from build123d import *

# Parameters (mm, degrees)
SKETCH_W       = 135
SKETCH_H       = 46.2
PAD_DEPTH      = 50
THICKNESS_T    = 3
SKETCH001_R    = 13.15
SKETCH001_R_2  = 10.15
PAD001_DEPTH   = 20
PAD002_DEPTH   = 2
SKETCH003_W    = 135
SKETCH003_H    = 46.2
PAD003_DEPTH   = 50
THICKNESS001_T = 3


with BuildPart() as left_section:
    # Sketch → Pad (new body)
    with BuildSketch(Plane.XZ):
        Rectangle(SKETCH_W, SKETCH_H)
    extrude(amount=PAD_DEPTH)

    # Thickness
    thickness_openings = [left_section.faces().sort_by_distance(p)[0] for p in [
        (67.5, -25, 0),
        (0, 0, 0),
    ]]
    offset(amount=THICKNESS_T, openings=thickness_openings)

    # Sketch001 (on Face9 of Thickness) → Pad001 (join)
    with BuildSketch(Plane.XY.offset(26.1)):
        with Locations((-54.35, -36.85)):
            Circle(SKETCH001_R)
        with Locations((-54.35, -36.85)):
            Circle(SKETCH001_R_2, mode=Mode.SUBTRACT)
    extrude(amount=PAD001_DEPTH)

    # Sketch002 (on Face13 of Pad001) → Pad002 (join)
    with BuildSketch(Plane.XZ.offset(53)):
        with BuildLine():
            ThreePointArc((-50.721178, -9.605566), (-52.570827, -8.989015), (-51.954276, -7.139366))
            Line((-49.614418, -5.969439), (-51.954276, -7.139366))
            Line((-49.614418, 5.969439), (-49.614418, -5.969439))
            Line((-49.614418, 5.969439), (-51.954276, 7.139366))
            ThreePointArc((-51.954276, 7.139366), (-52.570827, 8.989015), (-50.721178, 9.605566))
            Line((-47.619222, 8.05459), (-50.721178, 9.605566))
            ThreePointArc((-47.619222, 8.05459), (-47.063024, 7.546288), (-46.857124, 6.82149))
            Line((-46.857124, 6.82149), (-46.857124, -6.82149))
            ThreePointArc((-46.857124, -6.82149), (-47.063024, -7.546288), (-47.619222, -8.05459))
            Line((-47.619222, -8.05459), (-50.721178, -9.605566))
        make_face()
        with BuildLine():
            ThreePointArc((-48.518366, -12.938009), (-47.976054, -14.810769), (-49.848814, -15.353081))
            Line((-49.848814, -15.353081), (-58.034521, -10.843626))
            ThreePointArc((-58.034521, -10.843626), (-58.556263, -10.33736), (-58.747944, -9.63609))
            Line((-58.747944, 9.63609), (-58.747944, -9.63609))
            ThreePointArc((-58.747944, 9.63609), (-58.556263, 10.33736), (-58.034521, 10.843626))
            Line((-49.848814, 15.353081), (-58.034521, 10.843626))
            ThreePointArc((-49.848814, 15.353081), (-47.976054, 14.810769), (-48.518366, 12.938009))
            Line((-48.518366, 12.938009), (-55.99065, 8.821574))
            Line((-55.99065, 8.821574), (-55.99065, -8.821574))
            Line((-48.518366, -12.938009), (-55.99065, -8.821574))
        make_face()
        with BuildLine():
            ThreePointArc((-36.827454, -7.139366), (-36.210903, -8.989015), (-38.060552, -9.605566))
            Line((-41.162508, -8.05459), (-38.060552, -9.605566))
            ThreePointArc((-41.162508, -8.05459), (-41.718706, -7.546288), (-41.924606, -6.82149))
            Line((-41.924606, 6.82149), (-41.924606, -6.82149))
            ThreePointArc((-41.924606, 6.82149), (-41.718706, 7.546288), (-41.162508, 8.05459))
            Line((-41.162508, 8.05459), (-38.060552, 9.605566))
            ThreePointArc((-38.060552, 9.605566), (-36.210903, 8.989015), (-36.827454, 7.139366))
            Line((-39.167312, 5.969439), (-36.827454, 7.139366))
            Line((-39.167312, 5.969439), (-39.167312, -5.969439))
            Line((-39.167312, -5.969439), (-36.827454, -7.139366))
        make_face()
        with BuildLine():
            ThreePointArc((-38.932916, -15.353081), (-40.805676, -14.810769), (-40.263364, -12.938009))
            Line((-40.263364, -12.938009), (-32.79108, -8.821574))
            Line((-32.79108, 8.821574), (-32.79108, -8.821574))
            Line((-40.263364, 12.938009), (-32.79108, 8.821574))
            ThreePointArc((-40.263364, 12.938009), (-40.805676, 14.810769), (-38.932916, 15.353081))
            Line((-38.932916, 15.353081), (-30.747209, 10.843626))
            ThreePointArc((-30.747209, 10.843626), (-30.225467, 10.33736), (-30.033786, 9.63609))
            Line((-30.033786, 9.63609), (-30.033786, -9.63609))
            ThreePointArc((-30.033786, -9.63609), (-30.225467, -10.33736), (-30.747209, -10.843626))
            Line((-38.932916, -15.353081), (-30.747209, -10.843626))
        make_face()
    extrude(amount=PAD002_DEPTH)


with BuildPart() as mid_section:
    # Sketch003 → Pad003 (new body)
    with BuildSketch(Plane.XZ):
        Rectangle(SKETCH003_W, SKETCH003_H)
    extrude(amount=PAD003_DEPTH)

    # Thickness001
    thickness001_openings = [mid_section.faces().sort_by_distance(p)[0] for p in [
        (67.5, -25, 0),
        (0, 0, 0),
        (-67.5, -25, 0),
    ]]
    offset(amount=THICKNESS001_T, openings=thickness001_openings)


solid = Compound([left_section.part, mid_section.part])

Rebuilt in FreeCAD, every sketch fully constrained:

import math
import FreeCAD as App
import Part
import Sketcher


def faces_at(feature, points):
    """Names of the faces that lie closest to the given points."""
    faces = feature.Shape.Faces
    near = lambda p: min(range(len(faces)), key=lambda i: faces[i].distToShape(Part.Vertex(*p))[0])
    return sorted({f"Face{near(p) + 1}" for p in points})


def add_polygon(sketch, points):
    """Adds a closed chain of lines whose ends are joined by coincident constraints."""
    first, n = sketch.GeometryCount, len(points)
    for a, b in zip(points, points[1:] + points[:1]):
        sketch.addGeometry(Part.LineSegment(App.Vector(*a, 0), App.Vector(*b, 0)), False)
    for i in range(n):
        sketch.addConstraint(Sketcher.Constraint("Coincident", first + i, 2, first + (i + 1) % n, 1))

doc = App.newDocument("Part")
body = doc.addObject("PartDesign::Body", "Body")

sketch1 = body.newObject("Sketcher::SketchObject", "Sketch")
sketch1.AttachmentSupport = (doc.getObject("XZ_Plane"), [""])
sketch1.MapMode = "FlatFace"
add_polygon(sketch1, [(-67.5, 23.1), (-67.5, -23.1), (67.5, -23.1), (67.5, 23.1)])
sketch1.addConstraint([
    Sketcher.Constraint("Vertical", 0),
    Sketcher.Constraint("Horizontal", 1),
    Sketcher.Constraint("Vertical", 2),
    Sketcher.Constraint("Horizontal", 3),
    Sketcher.Constraint("Symmetric", 0, 2, 2, 2, -1, 1),
    Sketcher.Constraint("DistanceX", 1, 1, 1, 2, 135.0),
    Sketcher.Constraint("DistanceY", 0, 2, 0, 1, 46.2),
])
pad1 = body.newObject("PartDesign::Pad", "Pad")
pad1.Profile = sketch1
pad1.Length = 50
doc.recompute()

thickness = body.newObject("PartDesign::Thickness", "Thickness")
thickness.Base = (pad1, faces_at(pad1, [(67.5, -25, 0), (0, 0, 0)]))
thickness.Value = 3
thickness.Reversed = False
thickness.Join = "Arc"

sketch2 = body.newObject("Sketcher::SketchObject", "Sketch001")
sketch2.AttachmentSupport = (doc.getObject("XY_Plane"), [""])
sketch2.MapMode = "FlatFace"
sketch2.AttachmentOffset = App.Placement(App.Vector(0, 0, 26.1), App.Rotation())
sketch2.addGeometry([
    Part.Circle(App.Vector(-54.35, -36.85, 0), App.Vector(0, 0, 1), 13.15),
    Part.Circle(App.Vector(-54.35, -36.85, 0), App.Vector(0, 0, 1), 10.15),
], False)
sketch2.addConstraint([
    Sketcher.Constraint("Coincident", 1, 3, 0, 3),
    Sketcher.Constraint("Diameter", 0, 26.3),
    Sketcher.Constraint("Diameter", 1, 20.3),
    Sketcher.Constraint("DistanceX", 0, 3, -1, 1, 54.35),
    Sketcher.Constraint("DistanceY", 0, 3, -1, 1, 36.85),
])
pad2 = body.newObject("PartDesign::Pad", "Pad001")
pad2.Profile = sketch2
pad2.Length = 20

sketch3 = body.newObject("Sketcher::SketchObject", "Sketch002")
sketch3.AttachmentSupport = (doc.getObject("XZ_Plane"), [""])
sketch3.MapMode = "FlatFace"
sketch3.AttachmentOffset = App.Placement(App.Vector(0, 0, 53), App.Rotation())
sketch3.addGeometry([
    Part.ArcOfCircle(Part.Circle(App.Vector(-51.337727, -8.372466, 0), App.Vector(0, 0, 1), 1.378647), math.radians(116.565014), math.radians(296.565014)),
    Part.LineSegment(App.Vector(-50.721178, -9.605566, 0), App.Vector(-47.619222, -8.05459, 0)),
    Part.ArcOfCircle(Part.Circle(App.Vector(-48.235772, -6.82149, 0), App.Vector(0, 0, 1), 1.378648), math.radians(-63.434964), math.radians(-0.000004)),
    Part.LineSegment(App.Vector(-46.857124, -6.82149, 0), App.Vector(-46.857124, 6.82149, 0)),
    Part.ArcOfCircle(Part.Circle(App.Vector(-48.235772, 6.82149, 0), App.Vector(0, 0, 1), 1.378648), math.radians(0.000004), math.radians(63.434964)),
    Part.LineSegment(App.Vector(-47.619222, 8.05459, 0), App.Vector(-50.721178, 9.605566, 0)),
    Part.ArcOfCircle(Part.Circle(App.Vector(-51.337727, 8.372466, 0), App.Vector(0, 0, 1), 1.378647), math.radians(63.434986), math.radians(243.434986)),
    Part.LineSegment(App.Vector(-51.954276, 7.139366, 0), App.Vector(-49.614418, 5.969439, 0)),
    Part.LineSegment(App.Vector(-49.614418, 5.969439, 0), App.Vector(-49.614418, -5.969439, 0)),
    Part.LineSegment(App.Vector(-49.614418, -5.969439, 0), App.Vector(-51.954276, -7.139366, 0)),
    Part.ArcOfCircle(Part.Circle(App.Vector(-49.18359, -14.145545, 0), App.Vector(0, 0, 1), 1.378646), math.radians(-118.850093), math.radians(61.149907)),
    Part.LineSegment(App.Vector(-48.518366, -12.938009, 0), App.Vector(-55.99065, -8.821574, 0)),
    Part.LineSegment(App.Vector(-55.99065, -8.821574, 0), App.Vector(-55.99065, 8.821574, 0)),
    Part.LineSegment(App.Vector(-55.99065, 8.821574, 0), App.Vector(-48.518366, 12.938009, 0)),
    Part.ArcOfCircle(Part.Circle(App.Vector(-49.18359, 14.145545, 0), App.Vector(0, 0, 1), 1.378646), math.radians(-61.149907), math.radians(118.850093)),
    Part.LineSegment(App.Vector(-49.848814, 15.353081, 0), App.Vector(-58.034521, 10.843626, 0)),
    Part.ArcOfCircle(Part.Circle(App.Vector(-57.3693, 9.636091, 0), App.Vector(0, 0, 1), 1.378644), math.radians(118.850018), math.radians(180.00004)),
    Part.LineSegment(App.Vector(-58.747944, 9.63609, 0), App.Vector(-58.747944, -9.63609, 0)),
    Part.ArcOfCircle(Part.Circle(App.Vector(-57.3693, -9.636091, 0), App.Vector(0, 0, 1), 1.378644), math.radians(179.99996), math.radians(241.149982)),
    Part.LineSegment(App.Vector(-58.034521, -10.843626, 0), App.Vector(-49.848814, -15.353081, 0)),
    Part.ArcOfCircle(Part.Circle(App.Vector(-37.444003, -8.372466, 0), App.Vector(0, 0, 1), 1.378647), math.radians(-116.565014), math.radians(63.434986)),
    Part.LineSegment(App.Vector(-36.827454, -7.139366, 0), App.Vector(-39.167312, -5.969439, 0)),
    Part.LineSegment(App.Vector(-39.167312, -5.969439, 0), App.Vector(-39.167312, 5.969439, 0)),
    Part.LineSegment(App.Vector(-39.167312, 5.969439, 0), App.Vector(-36.827454, 7.139366, 0)),
    Part.ArcOfCircle(Part.Circle(App.Vector(-37.444003, 8.372466, 0), App.Vector(0, 0, 1), 1.378647), math.radians(-63.434986), math.radians(116.565014)),
    Part.LineSegment(App.Vector(-38.060552, 9.605566, 0), App.Vector(-41.162508, 8.05459, 0)),
    Part.ArcOfCircle(Part.Circle(App.Vector(-40.545958, 6.82149, 0), App.Vector(0, 0, 1), 1.378648), math.radians(116.565036), math.radians(179.999996)),
    Part.LineSegment(App.Vector(-41.924606, 6.82149, 0), App.Vector(-41.924606, -6.82149, 0)),
    Part.ArcOfCircle(Part.Circle(App.Vector(-40.545958, -6.82149, 0), App.Vector(0, 0, 1), 1.378648), math.radians(-179.999996), math.radians(-116.565036)),
    Part.LineSegment(App.Vector(-41.162508, -8.05459, 0), App.Vector(-38.060552, -9.605566, 0)),
    Part.ArcOfCircle(Part.Circle(App.Vector(-39.59814, -14.145545, 0), App.Vector(0, 0, 1), 1.378646), math.radians(118.850093), math.radians(298.850093)),
    Part.LineSegment(App.Vector(-38.932916, -15.353081, 0), App.Vector(-30.747209, -10.843626, 0)),
    Part.ArcOfCircle(Part.Circle(App.Vector(-31.41243, -9.636091, 0), App.Vector(0, 0, 1), 1.378644), math.radians(-61.149982), math.radians(0.00004)),
    Part.LineSegment(App.Vector(-30.033786, -9.63609, 0), App.Vector(-30.033786, 9.63609, 0)),
    Part.ArcOfCircle(Part.Circle(App.Vector(-31.41243, 9.636091, 0), App.Vector(0, 0, 1), 1.378644), math.radians(-0.00004), math.radians(61.149982)),
    Part.LineSegment(App.Vector(-30.747209, 10.843626, 0), App.Vector(-38.932916, 15.353081, 0)),
    Part.ArcOfCircle(Part.Circle(App.Vector(-39.59814, 14.145545, 0), App.Vector(0, 0, 1), 1.378646), math.radians(61.149907), math.radians(241.149907)),
    Part.LineSegment(App.Vector(-40.263364, 12.938009, 0), App.Vector(-32.79108, 8.821574, 0)),
    Part.LineSegment(App.Vector(-32.79108, 8.821574, 0), App.Vector(-32.79108, -8.821574, 0)),
    Part.LineSegment(App.Vector(-32.79108, -8.821574, 0), App.Vector(-40.263364, -12.938009, 0)),
], False)
sketch3.addConstraint([
    Sketcher.Constraint("Tangent", 0, 2, 1, 1),
    Sketcher.Constraint("Tangent", 1, 2, 2, 1),
    Sketcher.Constraint("Tangent", 2, 2, 3, 1),
    Sketcher.Constraint("Tangent", 3, 2, 4, 1),
    Sketcher.Constraint("Tangent", 4, 2, 5, 1),
    Sketcher.Constraint("Tangent", 5, 2, 6, 1),
    Sketcher.Constraint("Tangent", 6, 2, 7, 1),
    Sketcher.Constraint("Coincident", 7, 2, 8, 1),
    Sketcher.Constraint("Coincident", 8, 2, 9, 1),
    Sketcher.Constraint("Tangent", 9, 2, 0, 1),
    Sketcher.Constraint("Tangent", 10, 2, 11, 1),
    Sketcher.Constraint("Coincident", 11, 2, 12, 1),
    Sketcher.Constraint("Coincident", 12, 2, 13, 1),
    Sketcher.Constraint("Tangent", 13, 2, 14, 1),
    Sketcher.Constraint("Tangent", 14, 2, 15, 1),
    Sketcher.Constraint("Tangent", 15, 2, 16, 1),
    Sketcher.Constraint("Tangent", 16, 2, 17, 1),
    Sketcher.Constraint("Tangent", 17, 2, 18, 1),
    Sketcher.Constraint("Tangent", 18, 2, 19, 1),
    Sketcher.Constraint("Tangent", 19, 2, 10, 1),
    Sketcher.Constraint("Tangent", 20, 2, 21, 1),
    Sketcher.Constraint("Coincident", 21, 2, 22, 1),
    Sketcher.Constraint("Coincident", 22, 2, 23, 1),
    Sketcher.Constraint("Tangent", 23, 2, 24, 1),
    Sketcher.Constraint("Tangent", 24, 2, 25, 1),
    Sketcher.Constraint("Tangent", 25, 2, 26, 1),
    Sketcher.Constraint("Tangent", 26, 2, 27, 1),
    Sketcher.Constraint("Tangent", 27, 2, 28, 1),
    Sketcher.Constraint("Tangent", 28, 2, 29, 1),
    Sketcher.Constraint("Tangent", 29, 2, 20, 1),
    Sketcher.Constraint("Tangent", 30, 2, 31, 1),
    Sketcher.Constraint("Tangent", 31, 2, 32, 1),
    Sketcher.Constraint("Tangent", 32, 2, 33, 1),
    Sketcher.Constraint("Tangent", 33, 2, 34, 1),
    Sketcher.Constraint("Tangent", 34, 2, 35, 1),
    Sketcher.Constraint("Tangent", 35, 2, 36, 1),
    Sketcher.Constraint("Tangent", 36, 2, 37, 1),
    Sketcher.Constraint("Coincident", 37, 2, 38, 1),
    Sketcher.Constraint("Coincident", 38, 2, 39, 1),
    Sketcher.Constraint("Tangent", 39, 2, 30, 1),
    Sketcher.Constraint("Vertical", 3),
    Sketcher.Constraint("Vertical", 8),
    Sketcher.Constraint("Vertical", 12),
    Sketcher.Constraint("Vertical", 17),
    Sketcher.Constraint("Vertical", 22),
    Sketcher.Constraint("Vertical", 27),
    Sketcher.Constraint("Vertical", 33),
    Sketcher.Constraint("Vertical", 38),
    Sketcher.Constraint("Equal", 0, 2),
    Sketcher.Constraint("Equal", 2, 4),
    Sketcher.Constraint("Equal", 4, 6),
    Sketcher.Constraint("Equal", 6, 10),
    Sketcher.Constraint("Equal", 10, 14),
    Sketcher.Constraint("Equal", 16, 18),
    Sketcher.Constraint("Equal", 14, 20),
    Sketcher.Constraint("Equal", 20, 24),
    Sketcher.Constraint("Equal", 24, 26),
    Sketcher.Constraint("Equal", 26, 28),
    Sketcher.Constraint("Equal", 28, 30),
    Sketcher.Constraint("Equal", 18, 32),
    Sketcher.Constraint("Equal", 32, 34),
    Sketcher.Constraint("Equal", 30, 36),
    Sketcher.Constraint("Symmetric", 0, 3, 6, 3, -1),
    Sketcher.Constraint("Symmetric", 10, 3, 14, 3, -1),
    Sketcher.Constraint("Symmetric", 20, 3, 24, 3, -1),
    Sketcher.Constraint("Symmetric", 30, 3, 36, 3, -1),
    Sketcher.Constraint("Parallel", 5, 7),
    Sketcher.Constraint("Parallel", 1, 9),
    Sketcher.Constraint("Parallel", 13, 15),
    Sketcher.Constraint("Parallel", 11, 19),
    Sketcher.Constraint("Parallel", 7, 21),
    Sketcher.Constraint("Parallel", 9, 23),
    Sketcher.Constraint("Parallel", 23, 25),
    Sketcher.Constraint("Parallel", 21, 29),
    Sketcher.Constraint("Parallel", 15, 31),
    Sketcher.Constraint("Parallel", 19, 35),
    Sketcher.Constraint("Parallel", 35, 37),
    Sketcher.Constraint("Parallel", 31, 39),
    Sketcher.Constraint("Horizontal", 0, 3, 20, 3),
    Sketcher.Constraint("Horizontal", 4, 3, 26, 3),
    Sketcher.Constraint("Horizontal", 2, 3, 28, 3),
    Sketcher.Constraint("Horizontal", 10, 3, 30, 3),
    Sketcher.Constraint("Horizontal", 18, 3, 32, 3),
    Sketcher.Constraint("Horizontal", 16, 3, 34, 3),
    Sketcher.Constraint("Horizontal", 8, 2, 21, 2),
    Sketcher.Constraint("Horizontal", 12, 2, 37, 2),
    Sketcher.Constraint("Radius", 0, 1.378647),
    Sketcher.Constraint("Radius", 16, 1.378644),
    Sketcher.Constraint("DistanceY", 3, 1, 3, 2, 13.64298),
    Sketcher.Constraint("DistanceY", 8, 2, 8, 1, 11.938878),
    Sketcher.Constraint("DistanceY", 12, 1, 12, 2, 17.643148),
    Sketcher.Constraint("DistanceY", 17, 2, 17, 1, 19.27218),
    Sketcher.Constraint("DistanceX", 16, 3, -1, 1, 57.3693),
    Sketcher.Constraint("DistanceY", 0, 2, 0, 3, 1.2331),
    Sketcher.Constraint("Distance", 1, 3.468091),
    Sketcher.Constraint("Distance", 15, 9.34564),
    Sketcher.Constraint("DistanceX", 2, 3, -1, 1, 48.235772),
    Sketcher.Constraint("DistanceX", 10, 3, -1, 1, 49.18359),
    Sketcher.Constraint("DistanceX", 26, 3, -1, 1, 40.545958),
    Sketcher.Constraint("DistanceX", 30, 3, -1, 1, 39.59814),
])
pad3 = body.newObject("PartDesign::Pad", "Pad002")
pad3.Profile = sketch3
pad3.Length = 2
body2 = doc.addObject("PartDesign::Body", "Body001")

sketch4 = body2.newObject("Sketcher::SketchObject", "Sketch003")
sketch4.AttachmentSupport = (doc.getObject("XZ_Plane001"), [""])
sketch4.MapMode = "FlatFace"
add_polygon(sketch4, [(-67.5, 23.1), (-67.5, -23.1), (67.5, -23.1), (67.5, 23.1)])
sketch4.addConstraint([
    Sketcher.Constraint("Vertical", 0),
    Sketcher.Constraint("Horizontal", 1),
    Sketcher.Constraint("Vertical", 2),
    Sketcher.Constraint("Horizontal", 3),
    Sketcher.Constraint("Symmetric", 0, 2, 2, 2, -1, 1),
    Sketcher.Constraint("DistanceX", 1, 1, 1, 2, 135.0),
    Sketcher.Constraint("DistanceY", 0, 2, 0, 1, 46.2),
])
pad4 = body2.newObject("PartDesign::Pad", "Pad003")
pad4.Profile = sketch4
pad4.Length = 50
doc.recompute()

thickness2 = body2.newObject("PartDesign::Thickness", "Thickness001")
thickness2.Base = (pad4, faces_at(pad4, [(67.5, -25, 0), (0, 0, 0), (-67.5, -25, 0)]))
thickness2.Value = 3
thickness2.Reversed = False
thickness2.Join = "Arc"

doc.recompute()
